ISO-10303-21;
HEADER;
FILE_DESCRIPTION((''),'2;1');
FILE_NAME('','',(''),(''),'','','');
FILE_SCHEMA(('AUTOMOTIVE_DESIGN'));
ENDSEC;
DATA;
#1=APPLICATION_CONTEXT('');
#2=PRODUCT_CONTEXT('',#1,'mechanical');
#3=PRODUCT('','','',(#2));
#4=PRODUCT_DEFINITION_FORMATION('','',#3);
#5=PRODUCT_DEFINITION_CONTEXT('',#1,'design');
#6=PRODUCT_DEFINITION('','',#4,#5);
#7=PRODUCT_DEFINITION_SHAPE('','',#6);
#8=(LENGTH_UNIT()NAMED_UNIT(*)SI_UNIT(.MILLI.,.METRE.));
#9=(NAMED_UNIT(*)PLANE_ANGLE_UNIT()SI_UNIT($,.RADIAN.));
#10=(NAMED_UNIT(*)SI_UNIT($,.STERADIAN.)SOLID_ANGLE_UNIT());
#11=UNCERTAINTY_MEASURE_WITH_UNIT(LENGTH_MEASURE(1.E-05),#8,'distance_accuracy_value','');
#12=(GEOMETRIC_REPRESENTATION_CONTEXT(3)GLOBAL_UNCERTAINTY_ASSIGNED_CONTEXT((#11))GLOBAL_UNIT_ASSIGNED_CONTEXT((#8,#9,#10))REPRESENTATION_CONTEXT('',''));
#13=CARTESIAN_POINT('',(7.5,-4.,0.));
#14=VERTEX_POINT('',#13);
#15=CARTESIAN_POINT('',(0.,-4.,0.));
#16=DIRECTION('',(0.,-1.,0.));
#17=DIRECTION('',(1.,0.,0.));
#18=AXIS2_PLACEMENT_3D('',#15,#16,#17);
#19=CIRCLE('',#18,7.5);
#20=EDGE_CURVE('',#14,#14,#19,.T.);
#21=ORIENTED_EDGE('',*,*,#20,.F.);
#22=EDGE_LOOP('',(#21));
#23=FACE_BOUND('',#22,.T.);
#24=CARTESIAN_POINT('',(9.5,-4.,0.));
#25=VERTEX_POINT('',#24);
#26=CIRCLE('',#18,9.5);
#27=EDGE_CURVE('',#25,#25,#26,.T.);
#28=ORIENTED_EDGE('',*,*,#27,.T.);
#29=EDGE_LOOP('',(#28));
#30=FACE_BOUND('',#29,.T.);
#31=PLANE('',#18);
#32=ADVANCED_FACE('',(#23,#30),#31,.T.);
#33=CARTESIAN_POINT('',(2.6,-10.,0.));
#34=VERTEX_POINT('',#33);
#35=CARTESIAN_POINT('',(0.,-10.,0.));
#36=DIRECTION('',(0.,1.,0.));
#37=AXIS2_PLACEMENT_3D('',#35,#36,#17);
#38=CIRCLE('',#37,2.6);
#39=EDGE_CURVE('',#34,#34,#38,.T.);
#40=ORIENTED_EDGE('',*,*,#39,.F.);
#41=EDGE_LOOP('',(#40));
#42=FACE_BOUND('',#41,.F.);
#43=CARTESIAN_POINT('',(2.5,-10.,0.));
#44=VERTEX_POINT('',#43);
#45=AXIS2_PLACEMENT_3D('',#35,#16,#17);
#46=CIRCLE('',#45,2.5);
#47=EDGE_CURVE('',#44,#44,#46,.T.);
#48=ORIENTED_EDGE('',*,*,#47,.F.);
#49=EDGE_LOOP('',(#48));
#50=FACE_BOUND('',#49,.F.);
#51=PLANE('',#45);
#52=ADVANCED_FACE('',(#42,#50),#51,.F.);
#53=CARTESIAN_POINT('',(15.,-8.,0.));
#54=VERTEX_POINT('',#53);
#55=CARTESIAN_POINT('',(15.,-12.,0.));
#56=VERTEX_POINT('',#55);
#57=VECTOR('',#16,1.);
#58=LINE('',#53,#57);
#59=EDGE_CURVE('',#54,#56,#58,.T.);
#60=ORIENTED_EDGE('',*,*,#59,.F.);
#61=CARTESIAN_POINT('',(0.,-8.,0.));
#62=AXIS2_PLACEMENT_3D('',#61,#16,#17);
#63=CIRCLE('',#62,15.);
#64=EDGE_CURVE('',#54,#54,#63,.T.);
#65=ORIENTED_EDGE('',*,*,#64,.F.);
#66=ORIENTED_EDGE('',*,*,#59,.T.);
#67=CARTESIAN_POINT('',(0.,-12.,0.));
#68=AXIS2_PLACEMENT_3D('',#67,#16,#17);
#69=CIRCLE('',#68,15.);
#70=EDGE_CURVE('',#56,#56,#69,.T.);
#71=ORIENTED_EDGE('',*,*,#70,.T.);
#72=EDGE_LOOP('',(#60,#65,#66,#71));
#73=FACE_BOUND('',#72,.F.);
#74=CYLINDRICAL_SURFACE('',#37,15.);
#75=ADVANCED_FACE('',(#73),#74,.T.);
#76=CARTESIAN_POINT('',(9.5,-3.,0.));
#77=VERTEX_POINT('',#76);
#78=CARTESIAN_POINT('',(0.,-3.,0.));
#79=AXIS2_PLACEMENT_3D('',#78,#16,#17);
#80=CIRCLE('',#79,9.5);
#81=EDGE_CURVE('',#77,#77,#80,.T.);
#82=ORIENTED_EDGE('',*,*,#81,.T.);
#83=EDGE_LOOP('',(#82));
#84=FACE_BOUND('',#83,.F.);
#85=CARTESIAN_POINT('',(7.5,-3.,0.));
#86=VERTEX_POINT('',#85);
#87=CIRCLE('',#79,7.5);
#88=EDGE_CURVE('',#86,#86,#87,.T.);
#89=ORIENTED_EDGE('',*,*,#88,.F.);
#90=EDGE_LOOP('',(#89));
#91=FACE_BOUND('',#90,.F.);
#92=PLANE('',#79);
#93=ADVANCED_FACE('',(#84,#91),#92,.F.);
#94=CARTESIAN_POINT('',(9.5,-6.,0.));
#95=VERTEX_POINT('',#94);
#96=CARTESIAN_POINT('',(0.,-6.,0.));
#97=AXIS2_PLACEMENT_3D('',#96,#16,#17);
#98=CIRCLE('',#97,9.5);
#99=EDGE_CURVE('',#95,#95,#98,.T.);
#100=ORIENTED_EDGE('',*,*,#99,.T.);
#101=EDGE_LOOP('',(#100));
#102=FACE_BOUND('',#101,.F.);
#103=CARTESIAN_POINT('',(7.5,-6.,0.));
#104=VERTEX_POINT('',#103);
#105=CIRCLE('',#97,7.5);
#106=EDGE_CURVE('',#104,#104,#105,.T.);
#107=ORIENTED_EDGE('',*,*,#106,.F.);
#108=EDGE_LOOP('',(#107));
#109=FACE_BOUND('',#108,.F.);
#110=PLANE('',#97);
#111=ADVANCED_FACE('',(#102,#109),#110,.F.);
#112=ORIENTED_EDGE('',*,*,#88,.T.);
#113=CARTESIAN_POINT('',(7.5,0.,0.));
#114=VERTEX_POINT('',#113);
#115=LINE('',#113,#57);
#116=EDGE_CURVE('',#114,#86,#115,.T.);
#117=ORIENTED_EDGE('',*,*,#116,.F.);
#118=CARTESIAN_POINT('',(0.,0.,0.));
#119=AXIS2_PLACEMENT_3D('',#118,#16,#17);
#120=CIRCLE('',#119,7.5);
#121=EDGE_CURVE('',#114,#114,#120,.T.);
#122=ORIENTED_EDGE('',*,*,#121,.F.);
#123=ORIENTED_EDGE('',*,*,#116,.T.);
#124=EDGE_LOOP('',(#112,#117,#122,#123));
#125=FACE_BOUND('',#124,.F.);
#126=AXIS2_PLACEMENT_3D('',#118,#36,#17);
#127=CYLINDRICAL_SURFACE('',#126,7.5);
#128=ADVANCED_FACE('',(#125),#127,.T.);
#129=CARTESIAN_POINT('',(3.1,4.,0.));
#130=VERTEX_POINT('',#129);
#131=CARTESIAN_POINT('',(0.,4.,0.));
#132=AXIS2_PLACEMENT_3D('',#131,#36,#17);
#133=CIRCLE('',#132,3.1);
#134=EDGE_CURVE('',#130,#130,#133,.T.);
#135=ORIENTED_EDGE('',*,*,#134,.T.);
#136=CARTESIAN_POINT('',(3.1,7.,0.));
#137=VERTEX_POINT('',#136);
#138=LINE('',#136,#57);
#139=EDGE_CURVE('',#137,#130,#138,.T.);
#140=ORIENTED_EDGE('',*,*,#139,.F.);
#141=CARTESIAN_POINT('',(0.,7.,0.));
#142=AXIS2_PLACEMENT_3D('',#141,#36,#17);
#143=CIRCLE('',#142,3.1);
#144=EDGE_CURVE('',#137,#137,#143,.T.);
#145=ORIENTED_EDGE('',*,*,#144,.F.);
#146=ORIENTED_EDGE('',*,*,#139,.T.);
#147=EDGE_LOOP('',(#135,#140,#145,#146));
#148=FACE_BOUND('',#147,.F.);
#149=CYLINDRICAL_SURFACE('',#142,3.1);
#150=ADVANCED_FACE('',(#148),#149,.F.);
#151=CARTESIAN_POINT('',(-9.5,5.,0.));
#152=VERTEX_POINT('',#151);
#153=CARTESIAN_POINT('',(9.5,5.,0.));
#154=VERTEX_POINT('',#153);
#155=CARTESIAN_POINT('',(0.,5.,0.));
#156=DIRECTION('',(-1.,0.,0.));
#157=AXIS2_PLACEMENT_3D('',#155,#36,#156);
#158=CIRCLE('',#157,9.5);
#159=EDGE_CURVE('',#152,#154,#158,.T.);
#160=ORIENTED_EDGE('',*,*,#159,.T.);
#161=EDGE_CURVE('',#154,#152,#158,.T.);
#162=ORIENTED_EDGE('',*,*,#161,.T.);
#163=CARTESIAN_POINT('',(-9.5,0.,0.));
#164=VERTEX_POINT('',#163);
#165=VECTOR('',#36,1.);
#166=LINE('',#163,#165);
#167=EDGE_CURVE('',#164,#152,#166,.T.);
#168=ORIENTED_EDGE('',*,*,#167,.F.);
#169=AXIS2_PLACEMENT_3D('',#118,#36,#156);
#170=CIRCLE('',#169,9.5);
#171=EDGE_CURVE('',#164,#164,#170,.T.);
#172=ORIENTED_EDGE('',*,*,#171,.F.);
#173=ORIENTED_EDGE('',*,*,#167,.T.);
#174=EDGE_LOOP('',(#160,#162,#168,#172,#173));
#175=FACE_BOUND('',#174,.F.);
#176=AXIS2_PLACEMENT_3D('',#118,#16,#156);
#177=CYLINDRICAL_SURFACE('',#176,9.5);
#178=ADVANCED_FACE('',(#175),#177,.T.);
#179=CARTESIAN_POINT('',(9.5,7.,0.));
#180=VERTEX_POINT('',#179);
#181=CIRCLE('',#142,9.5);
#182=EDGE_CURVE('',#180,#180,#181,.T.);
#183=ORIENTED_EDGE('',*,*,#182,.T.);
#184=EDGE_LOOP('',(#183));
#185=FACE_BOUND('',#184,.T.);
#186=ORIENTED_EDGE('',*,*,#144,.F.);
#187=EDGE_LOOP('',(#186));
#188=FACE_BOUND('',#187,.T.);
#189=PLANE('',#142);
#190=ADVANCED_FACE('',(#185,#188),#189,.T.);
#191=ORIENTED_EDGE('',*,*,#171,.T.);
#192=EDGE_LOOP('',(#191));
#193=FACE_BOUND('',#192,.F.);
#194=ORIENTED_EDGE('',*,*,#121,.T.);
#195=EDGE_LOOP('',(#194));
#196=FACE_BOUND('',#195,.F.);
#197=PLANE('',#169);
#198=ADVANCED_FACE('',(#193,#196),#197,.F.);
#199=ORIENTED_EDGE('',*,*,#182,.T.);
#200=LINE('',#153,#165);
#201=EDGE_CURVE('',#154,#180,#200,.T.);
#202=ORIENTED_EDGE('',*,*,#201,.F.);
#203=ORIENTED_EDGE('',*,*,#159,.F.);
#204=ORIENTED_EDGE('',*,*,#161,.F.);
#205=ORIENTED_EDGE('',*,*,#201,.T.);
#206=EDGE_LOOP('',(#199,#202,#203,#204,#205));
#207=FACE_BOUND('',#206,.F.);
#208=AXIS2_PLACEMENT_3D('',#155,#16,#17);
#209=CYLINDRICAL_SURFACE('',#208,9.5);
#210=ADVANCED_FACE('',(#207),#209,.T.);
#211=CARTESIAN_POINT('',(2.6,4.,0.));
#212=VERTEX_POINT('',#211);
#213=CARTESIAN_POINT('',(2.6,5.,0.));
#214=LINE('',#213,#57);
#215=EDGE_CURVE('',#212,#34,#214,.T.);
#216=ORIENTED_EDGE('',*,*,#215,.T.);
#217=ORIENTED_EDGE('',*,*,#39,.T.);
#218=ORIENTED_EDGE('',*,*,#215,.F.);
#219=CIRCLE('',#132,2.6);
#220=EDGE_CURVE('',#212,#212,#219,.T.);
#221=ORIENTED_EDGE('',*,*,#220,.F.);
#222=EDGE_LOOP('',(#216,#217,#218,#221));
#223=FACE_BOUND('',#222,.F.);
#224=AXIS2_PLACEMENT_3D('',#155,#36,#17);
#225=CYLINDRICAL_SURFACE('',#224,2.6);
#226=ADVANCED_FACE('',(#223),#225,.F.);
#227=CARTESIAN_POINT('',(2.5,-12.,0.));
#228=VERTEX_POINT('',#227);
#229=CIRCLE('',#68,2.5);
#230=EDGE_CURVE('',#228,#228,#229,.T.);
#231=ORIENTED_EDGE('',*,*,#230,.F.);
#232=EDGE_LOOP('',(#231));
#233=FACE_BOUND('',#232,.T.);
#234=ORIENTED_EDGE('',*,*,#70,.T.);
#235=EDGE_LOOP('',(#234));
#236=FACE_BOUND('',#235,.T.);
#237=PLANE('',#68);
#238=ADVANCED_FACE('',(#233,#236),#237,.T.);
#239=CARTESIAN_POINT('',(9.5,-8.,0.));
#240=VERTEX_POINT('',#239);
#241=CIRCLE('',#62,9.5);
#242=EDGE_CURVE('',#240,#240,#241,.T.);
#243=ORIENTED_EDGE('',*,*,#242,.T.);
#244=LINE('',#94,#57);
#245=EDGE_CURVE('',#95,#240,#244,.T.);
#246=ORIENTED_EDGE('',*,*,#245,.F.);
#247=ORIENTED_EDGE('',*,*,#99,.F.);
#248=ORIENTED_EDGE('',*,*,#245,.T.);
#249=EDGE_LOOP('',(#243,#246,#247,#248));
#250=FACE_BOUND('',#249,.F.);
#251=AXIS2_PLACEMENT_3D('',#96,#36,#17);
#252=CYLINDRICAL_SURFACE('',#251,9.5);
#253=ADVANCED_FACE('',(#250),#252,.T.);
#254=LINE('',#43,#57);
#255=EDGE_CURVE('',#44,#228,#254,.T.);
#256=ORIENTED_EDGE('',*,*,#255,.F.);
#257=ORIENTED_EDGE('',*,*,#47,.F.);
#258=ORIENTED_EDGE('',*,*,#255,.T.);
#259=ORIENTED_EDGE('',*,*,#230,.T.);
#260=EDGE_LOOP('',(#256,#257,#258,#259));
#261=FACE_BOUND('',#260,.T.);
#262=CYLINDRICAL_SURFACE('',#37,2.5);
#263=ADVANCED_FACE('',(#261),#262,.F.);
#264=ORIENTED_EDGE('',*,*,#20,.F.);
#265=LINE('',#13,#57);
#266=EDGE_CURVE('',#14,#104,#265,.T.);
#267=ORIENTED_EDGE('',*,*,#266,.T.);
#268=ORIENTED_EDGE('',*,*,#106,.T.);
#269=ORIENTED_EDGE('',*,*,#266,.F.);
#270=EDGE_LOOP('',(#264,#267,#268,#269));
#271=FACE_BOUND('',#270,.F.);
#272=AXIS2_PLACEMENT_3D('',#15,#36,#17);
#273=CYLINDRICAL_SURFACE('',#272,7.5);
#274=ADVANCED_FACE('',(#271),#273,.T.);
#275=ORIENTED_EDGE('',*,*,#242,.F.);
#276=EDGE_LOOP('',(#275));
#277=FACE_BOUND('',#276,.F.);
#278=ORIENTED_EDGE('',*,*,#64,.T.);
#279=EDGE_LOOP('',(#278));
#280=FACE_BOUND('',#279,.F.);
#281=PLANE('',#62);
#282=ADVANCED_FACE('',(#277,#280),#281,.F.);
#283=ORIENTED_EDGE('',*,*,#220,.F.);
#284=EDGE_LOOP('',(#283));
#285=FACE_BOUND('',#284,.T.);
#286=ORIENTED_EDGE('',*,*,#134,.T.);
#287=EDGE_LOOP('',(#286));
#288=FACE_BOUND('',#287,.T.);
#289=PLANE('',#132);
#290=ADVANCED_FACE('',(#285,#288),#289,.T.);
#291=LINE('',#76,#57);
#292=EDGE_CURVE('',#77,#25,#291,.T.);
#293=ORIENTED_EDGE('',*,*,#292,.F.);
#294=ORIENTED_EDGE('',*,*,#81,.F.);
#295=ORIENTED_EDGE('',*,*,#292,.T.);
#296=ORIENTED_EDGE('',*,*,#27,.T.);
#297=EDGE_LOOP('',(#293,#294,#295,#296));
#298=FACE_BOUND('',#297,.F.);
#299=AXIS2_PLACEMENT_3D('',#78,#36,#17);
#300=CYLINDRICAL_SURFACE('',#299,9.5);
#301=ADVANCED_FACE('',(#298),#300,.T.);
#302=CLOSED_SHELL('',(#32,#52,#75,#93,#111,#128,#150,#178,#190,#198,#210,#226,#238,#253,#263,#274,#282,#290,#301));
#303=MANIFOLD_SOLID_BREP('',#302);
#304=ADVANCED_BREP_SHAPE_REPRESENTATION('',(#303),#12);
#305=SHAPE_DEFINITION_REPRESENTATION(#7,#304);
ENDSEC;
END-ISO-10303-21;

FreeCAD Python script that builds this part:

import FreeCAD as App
import Part
import Sketcher

V = App.Vector
Q = App.Units.Quantity

doc = App.newDocument("Part")
body = doc.addObject("PartDesign::Body", "Body")

sketch1 = body.newObject("Sketcher::SketchObject", "Sketch")
sketch1.AttachmentSupport = (doc.getObject("XZ_Plane"), [""])
sketch1.MapMode = "FlatFace"
sketch1.addGeometry(Part.Circle(V(0, 0, 0), V(0, 0, 1), 10), False)
sketch1.addConstraint([
    Sketcher.Constraint("Coincident", 0, 3, -1, 1),
    Sketcher.Constraint("Diameter", 0, Q("19 mm")),
])
pad1 = body.newObject("PartDesign::Pad", "Pad")
pad1.Profile = sketch1
pad1.Length = 5
pad1.Reversed = True

sketch2 = body.newObject("Sketcher::SketchObject", "Sketch001")
sketch2.AttachmentSupport = (doc.getObject("XZ_Plane"), [""])
sketch2.MapMode = "FlatFace"
sketch2.addGeometry(Part.Circle(V(0, 0, 0), V(0, 0, 1), 8), False)
sketch2.addConstraint([
    Sketcher.Constraint("Coincident", 0, 3, -1, 1),
    Sketcher.Constraint("Diameter", 0, Q("15 mm")),
])
pad2 = body.newObject("PartDesign::Pad", "Pad001")
pad2.Profile = sketch2
pad2.Length = 3

sketch3 = body.newObject("Sketcher::SketchObject", "Sketch002")
sketch3.AttachmentSupport = (doc.getObject("XZ_Plane"), [""])
sketch3.MapMode = "FlatFace"
sketch3.AttachmentOffset = App.Placement(V(0, 0, 3), App.Rotation())
sketch3.addGeometry(Part.Circle(V(0, 0, 0), V(0, 0, 1), 10), False)
sketch3.addConstraint([
    Sketcher.Constraint("Coincident", 0, 3, -1, 1),
    Sketcher.Constraint("Diameter", 0, Q("19 mm")),
])
pad3 = body.newObject("PartDesign::Pad", "Pad002")
pad3.Profile = sketch3
pad3.Length = 1

sketch4 = body.newObject("Sketcher::SketchObject", "Sketch003")
sketch4.AttachmentSupport = (doc.getObject("XZ_Plane"), [""])
sketch4.MapMode = "FlatFace"
sketch4.AttachmentOffset = App.Placement(V(0, 0, 4), App.Rotation())
sketch4.addGeometry(Part.Circle(V(0, 0, 0), V(0, 0, 1), 8), False)
sketch4.addConstraint([
    Sketcher.Constraint("Coincident", 0, 3, -1, 1),
    Sketcher.Constraint("Diameter", 0, Q("15 mm")),
])
pad4 = body.newObject("PartDesign::Pad", "Pad003")
pad4.Profile = sketch4
pad4.Length = 2

sketch5 = body.newObject("Sketcher::SketchObject", "Sketch004")
sketch5.AttachmentSupport = (doc.getObject("XZ_Plane"), [""])
sketch5.MapMode = "FlatFace"
sketch5.AttachmentOffset = App.Placement(V(0, 0, 6), App.Rotation())
sketch5.addGeometry(Part.Circle(V(0, 0, 0), V(0, 0, 1), 10), False)
sketch5.addConstraint([
    Sketcher.Constraint("Coincident", 0, 3, -1, 1),
    Sketcher.Constraint("Diameter", 0, Q("19 mm")),
])
pad5 = body.newObject("PartDesign::Pad", "Pad004")
pad5.Profile = sketch5
pad5.Length = 2

sketch6 = body.newObject("Sketcher::SketchObject", "Sketch005")
sketch6.AttachmentSupport = (doc.getObject("XZ_Plane"), [""])
sketch6.MapMode = "FlatFace"
sketch6.AttachmentOffset = App.Placement(V(0, 0, 8), App.Rotation())
sketch6.addGeometry(Part.Circle(V(0, 0, 0), V(0, 0, 1), 15), False)
sketch6.addConstraint([
    Sketcher.Constraint("Coincident", 0, 3, -1, 1),
    Sketcher.Constraint("Diameter", 0, Q("30 mm")),
])
pad6 = body.newObject("PartDesign::Pad", "Pad005")
pad6.Profile = sketch6
pad6.Length = 2

sketch7 = body.newObject("Sketcher::SketchObject", "Sketch006")
sketch7.AttachmentSupport = (doc.getObject("XZ_Plane"), [""])
sketch7.MapMode = "FlatFace"
sketch7.AttachmentOffset = App.Placement(V(0, 0, -5), App.Rotation())
sketch7.addGeometry(Part.Circle(V(0, 0, 0), V(0, 0, 1), 2.6), False)
sketch7.addConstraint([
    Sketcher.Constraint("Coincident", 0, 3, -1, 1),
    Sketcher.Constraint("Diameter", 0, Q("5.2 mm")),
])
pocket1 = body.newObject("PartDesign::Pocket", "Pocket")
pocket1.Profile = sketch7
pocket1.Length = 27
pocket1.Reversed = True

sketch8 = body.newObject("Sketcher::SketchObject", "Sketch007")
sketch8.AttachmentSupport = (doc.getObject("XZ_Plane"), [""])
sketch8.MapMode = "FlatFace"
sketch8.AttachmentOffset = App.Placement(V(0, 0, 10), App.Rotation())
sketch8.addGeometry([
    Part.Circle(V(0, 0, 0), V(0, 0, 1), 15),
    Part.Circle(V(0, 0, 0), V(0, 0, 1), 2.5),
], False)
sketch8.addConstraint([
    Sketcher.Constraint("Coincident", 0, 3, -1, 1),
    Sketcher.Constraint("Coincident", 1, 3, -1, 1),
    Sketcher.Constraint("Diameter", 0, Q("30 mm")),
    Sketcher.Constraint("Diameter", 1, Q("5 mm")),
])
pad7 = body.newObject("PartDesign::Pad", "Pad006")
pad7.Profile = sketch8
pad7.Length = 2

sketch9 = body.newObject("Sketcher::SketchObject", "Sketch008")
sketch9.AttachmentSupport = (doc.getObject("XZ_Plane"), [""])
sketch9.MapMode = "FlatFace"
sketch9.AttachmentOffset = App.Placement(V(0, 0, -5), App.Rotation())
sketch9.addGeometry(Part.Circle(V(0, 0, 0), V(0, 0, 1), 10), False)
sketch9.addConstraint([
    Sketcher.Constraint("Coincident", 0, 3, -1, 1),
    Sketcher.Constraint("Diameter", 0, Q("19 mm")),
])
pad8 = body.newObject("PartDesign::Pad", "Pad007")
pad8.Profile = sketch9
pad8.Length = 2
pad8.Reversed = True

sketch10 = body.newObject("Sketcher::SketchObject", "Sketch009")
sketch10.AttachmentSupport = (doc.getObject("XZ_Plane"), [""])
sketch10.MapMode = "FlatFace"
sketch10.AttachmentOffset = App.Placement(V(0, 0, -7), App.Rotation())
sketch10.addGeometry(Part.Circle(V(0, 0, 0), V(0, 0, 1), 3.1), False)
sketch10.addConstraint([
    Sketcher.Constraint("Coincident", 0, 3, -1, 1),
    Sketcher.Constraint("Diameter", 0, Q("6.2 mm")),
])
pocket2 = body.newObject("PartDesign::Pocket", "Pocket001")
pocket2.Profile = sketch10
pocket2.Length = 3
pocket2.Reversed = True

doc.recompute()
